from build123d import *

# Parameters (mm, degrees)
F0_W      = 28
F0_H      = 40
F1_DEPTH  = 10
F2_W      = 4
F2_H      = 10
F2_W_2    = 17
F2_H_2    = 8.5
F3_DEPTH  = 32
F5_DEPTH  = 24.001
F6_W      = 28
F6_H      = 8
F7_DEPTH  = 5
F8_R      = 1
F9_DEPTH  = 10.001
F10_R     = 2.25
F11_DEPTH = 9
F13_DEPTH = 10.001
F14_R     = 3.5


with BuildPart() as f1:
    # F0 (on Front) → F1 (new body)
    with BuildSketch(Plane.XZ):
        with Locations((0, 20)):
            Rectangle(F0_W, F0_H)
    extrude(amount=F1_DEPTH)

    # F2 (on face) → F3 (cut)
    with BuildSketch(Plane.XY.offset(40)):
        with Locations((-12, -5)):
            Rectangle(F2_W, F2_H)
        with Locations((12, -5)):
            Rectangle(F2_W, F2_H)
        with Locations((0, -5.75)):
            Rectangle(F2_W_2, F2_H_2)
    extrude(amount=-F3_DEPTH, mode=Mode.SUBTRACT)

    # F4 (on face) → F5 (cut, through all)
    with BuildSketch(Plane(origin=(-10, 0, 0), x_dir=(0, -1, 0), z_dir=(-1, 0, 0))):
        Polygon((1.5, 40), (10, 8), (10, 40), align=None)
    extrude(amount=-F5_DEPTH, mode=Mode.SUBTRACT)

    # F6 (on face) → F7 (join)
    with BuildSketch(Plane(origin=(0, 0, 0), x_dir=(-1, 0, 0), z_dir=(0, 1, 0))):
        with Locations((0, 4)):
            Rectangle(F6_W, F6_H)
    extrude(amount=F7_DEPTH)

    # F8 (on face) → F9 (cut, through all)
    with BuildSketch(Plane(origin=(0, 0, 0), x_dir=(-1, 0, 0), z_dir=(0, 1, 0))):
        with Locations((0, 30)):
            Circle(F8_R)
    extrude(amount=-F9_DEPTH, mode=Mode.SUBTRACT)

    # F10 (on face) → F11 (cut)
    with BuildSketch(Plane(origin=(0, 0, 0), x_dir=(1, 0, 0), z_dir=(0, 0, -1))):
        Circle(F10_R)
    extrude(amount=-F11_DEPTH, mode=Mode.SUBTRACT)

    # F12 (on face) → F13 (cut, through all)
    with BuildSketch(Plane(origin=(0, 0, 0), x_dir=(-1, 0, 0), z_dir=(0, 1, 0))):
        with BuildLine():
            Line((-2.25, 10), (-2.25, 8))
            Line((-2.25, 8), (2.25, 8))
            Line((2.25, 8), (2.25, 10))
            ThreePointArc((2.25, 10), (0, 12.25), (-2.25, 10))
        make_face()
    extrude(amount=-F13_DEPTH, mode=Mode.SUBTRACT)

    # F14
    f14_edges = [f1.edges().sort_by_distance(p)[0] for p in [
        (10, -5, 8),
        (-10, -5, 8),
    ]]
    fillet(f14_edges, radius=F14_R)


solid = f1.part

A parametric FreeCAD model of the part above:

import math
import FreeCAD as App
import Part
import Sketcher
from FreeCAD import Vector
Q = App.Units.Quantity


def edges_at(feature, points):
    """Names of the edges that pass closest to the given points."""
    edges = feature.Shape.Edges
    near = lambda p: min(range(len(edges)), key=lambda i: edges[i].distToShape(Part.Vertex(*p))[0])
    return sorted({f"Edge{near(p) + 1}" for p in points})

doc = App.newDocument("Part")
params = doc.addObject("Spreadsheet::Sheet", "Params")
for row, (alias, value) in enumerate([
    ("sketch1_width", "28 mm"),
    ("sketch1_height", "40 mm"),
    ("pad1_length", "10 mm"),
    ("sketch2_width", "4 mm"),
    ("sketch2_width2", "17 mm"),
    ("sketch2_height", "10 mm"),
    ("sketch2_height2", "8.5 mm"),
    ("pocket1_length", "32 mm"),
    ("sketch3_height", "32 mm"),
    ("sketch3_width", "8.5 mm"),
    ("sketch4_width", "28 mm"),
    ("sketch4_height", "8 mm"),
    ("pad2_length", "5 mm"),
    ("sketch5_diameter", "2 mm"),
    ("sketch6_diameter", "4.5 mm"),
    ("pocket4_length", "9 mm"),
    ("sketch7_height", "2 mm"),
    ("sketch7_radius", "2.25 mm"),
    ("fillet_radius", "3.5 mm"),
], start=1):
    params.set(f"A{row}", alias)
    params.set(f"B{row}", "=" + value)
    params.setAlias(f"B{row}", alias)

body = doc.addObject("PartDesign::Body", "Body")

sketch1 = body.newObject("Sketcher::SketchObject", "Sketch")
sketch1.AttachmentSupport = (doc.getObject("XZ_Plane"), [""])
sketch1.MapMode = "FlatFace"
sketch1.addGeometry([
    Part.LineSegment(Vector(-14, 40, 0), Vector(-14, 0, 0)),
    Part.LineSegment(Vector(-14, 0, 0), Vector(14, 0, 0)),
    Part.LineSegment(Vector(14, 0, 0), Vector(14, 40, 0)),
    Part.LineSegment(Vector(14, 40, 0), Vector(-14, 40, 0)),
], False)
sketch1.addConstraint([
    Sketcher.Constraint("Coincident", 0, 2, 1, 1),
    Sketcher.Constraint("Coincident", 1, 2, 2, 1),
    Sketcher.Constraint("Coincident", 2, 2, 3, 1),
    Sketcher.Constraint("Coincident", 3, 2, 0, 1),
    Sketcher.Constraint("Vertical", 0),
    Sketcher.Constraint("Horizontal", 1),
    Sketcher.Constraint("Vertical", 2),
    Sketcher.Constraint("Horizontal", 3),
    Sketcher.Constraint("Symmetric", 0, 2, 1, 2, -1, 1),
    Sketcher.Constraint("DistanceX", 1, 1, 1, 2, Q("28 mm")),
    Sketcher.Constraint("DistanceY", 0, 2, 0, 1, Q("40 mm")),
])
sketch1.setExpression("Constraints[9]", "Params.sketch1_width")
sketch1.setExpression("Constraints[10]", "Params.sketch1_height")
pad1 = body.newObject("PartDesign::Pad", "Pad")
pad1.Profile = sketch1
pad1.setExpression("Length", "Params.pad1_length")

sketch2 = body.newObject("Sketcher::SketchObject", "Sketch001")
sketch2.AttachmentSupport = (doc.getObject("XY_Plane"), [""])
sketch2.MapMode = "FlatFace"
sketch2.AttachmentOffset = App.Placement(Vector(0, 0, 40), App.Rotation())
sketch2.addGeometry([
    Part.LineSegment(Vector(-14, 0, 0), Vector(-14, -10, 0)),
    Part.LineSegment(Vector(-14, -10, 0), Vector(-10, -10, 0)),
    Part.LineSegment(Vector(-10, -10, 0), Vector(-10, 0, 0)),
    Part.LineSegment(Vector(-10, 0, 0), Vector(-14, 0, 0)),
    Part.LineSegment(Vector(10, 0, 0), Vector(10, -10, 0)),
    Part.LineSegment(Vector(10, -10, 0), Vector(14, -10, 0)),
    Part.LineSegment(Vector(14, -10, 0), Vector(14, 0, 0)),
    Part.LineSegment(Vector(14, 0, 0), Vector(10, 0, 0)),
    Part.LineSegment(Vector(-8.5, -1.5, 0), Vector(-8.5, -10, 0)),
    Part.LineSegment(Vector(-8.5, -10, 0), Vector(8.5, -10, 0)),
    Part.LineSegment(Vector(8.5, -10, 0), Vector(8.5, -1.5, 0)),
    Part.LineSegment(Vector(8.5, -1.5, 0), Vector(-8.5, -1.5, 0)),
], False)
sketch2.addConstraint([
    Sketcher.Constraint("Coincident", 0, 2, 1, 1),
    Sketcher.Constraint("Coincident", 1, 2, 2, 1),
    Sketcher.Constraint("Coincident", 2, 2, 3, 1),
    Sketcher.Constraint("Coincident", 3, 2, 0, 1),
    Sketcher.Constraint("Coincident", 4, 2, 5, 1),
    Sketcher.Constraint("Coincident", 5, 2, 6, 1),
    Sketcher.Constraint("Coincident", 6, 2, 7, 1),
    Sketcher.Constraint("Coincident", 7, 2, 4, 1),
    Sketcher.Constraint("Coincident", 8, 2, 9, 1),
    Sketcher.Constraint("Coincident", 9, 2, 10, 1),
    Sketcher.Constraint("Coincident", 10, 2, 11, 1),
    Sketcher.Constraint("Coincident", 11, 2, 8, 1),
    Sketcher.Constraint("Vertical", 0),
    Sketcher.Constraint("Horizontal", 1),
    Sketcher.Constraint("Vertical", 2),
    Sketcher.Constraint("Horizontal", 3),
    Sketcher.Constraint("Vertical", 4),
    Sketcher.Constraint("Horizontal", 5),
    Sketcher.Constraint("Vertical", 6),
    Sketcher.Constraint("Horizontal", 7),
    Sketcher.Constraint("Vertical", 8),
    Sketcher.Constraint("Horizontal", 9),
    Sketcher.Constraint("Vertical", 10),
    Sketcher.Constraint("Horizontal", 11),
    Sketcher.Constraint("Symmetric", 3, 2, 6, 2, -1, 1),
    Sketcher.Constraint("Symmetric", 1, 2, 4, 2, -2),
    Sketcher.Constraint("PointOnObject", 2, 2, -1),
    Sketcher.Constraint("Horizontal", 5, 2, 8, 2),
    Sketcher.Constraint("DistanceX", 1, 1, 1, 2, Q("4 mm")),
    Sketcher.Constraint("DistanceX", 9, 1, 9, 2, Q("17 mm")),
    Sketcher.Constraint("DistanceY", 0, 2, 0, 1, Q("10 mm")),
    Sketcher.Constraint("DistanceY", 8, 2, 8, 1, Q("8.5 mm")),
    Sketcher.Constraint("DistanceX", 0, 2, -1, 1, Q("14 mm")),
    Sketcher.Constraint("DistanceX", 8, 2, -1, 1, Q("8.5 mm")),
])
sketch2.setExpression("Constraints[28]", "Params.sketch2_width")
sketch2.setExpression("Constraints[29]", "Params.sketch2_width2")
sketch2.setExpression("Constraints[30]", "Params.sketch2_height")
sketch2.setExpression("Constraints[31]", "Params.sketch2_height2")
pocket1 = body.newObject("PartDesign::Pocket", "Pocket")
pocket1.Profile = sketch2
pocket1.setExpression("Length", "Params.pocket1_length")

sketch3 = body.newObject("Sketcher::SketchObject", "Sketch002")
sketch3.AttachmentSupport = (doc.getObject("YZ_Plane"), [""])
sketch3.MapMode = "FlatFace"
sketch3.AttachmentOffset = App.Placement(Vector(0, 0, -10), App.Rotation())
sketch3.addGeometry([
    Part.LineSegment(Vector(-1.5, 40, 0), Vector(-10, 8, 0)),
    Part.LineSegment(Vector(-10, 8, 0), Vector(-10, 40, 0)),
    Part.LineSegment(Vector(-10, 40, 0), Vector(-1.5, 40, 0)),
], False)
sketch3.addConstraint([
    Sketcher.Constraint("Coincident", 0, 2, 1, 1),
    Sketcher.Constraint("Coincident", 1, 2, 2, 1),
    Sketcher.Constraint("Coincident", 2, 2, 0, 1),
    Sketcher.Constraint("Vertical", 1),
    Sketcher.Constraint("Horizontal", 2),
    Sketcher.Constraint("DistanceY", 1, 1, 1, 2, Q("32 mm")),
    Sketcher.Constraint("DistanceX", 2, 1, 2, 2, Q("8.5 mm")),
    Sketcher.Constraint("DistanceX", 0, 2, -1, 1, Q("10 mm")),
    Sketcher.Constraint("DistanceY", -1, 1, 0, 2, Q("8 mm")),
])
sketch3.setExpression("Constraints[5]", "Params.sketch3_height")
sketch3.setExpression("Constraints[6]", "Params.sketch3_width")
pocket2 = body.newObject("PartDesign::Pocket", "Pocket001")
pocket2.Profile = sketch3
pocket2.Type = "ThroughAll"
pocket2.Reversed = True

sketch4 = body.newObject("Sketcher::SketchObject", "Sketch003")
sketch4.AttachmentSupport = (doc.getObject("XZ_Plane"), [""])
sketch4.MapMode = "FlatFace"
sketch4.addGeometry([
    Part.LineSegment(Vector(14, 8, 0), Vector(14, 0, 0)),
    Part.LineSegment(Vector(14, 0, 0), Vector(-14, 0, 0)),
    Part.LineSegment(Vector(-14, 0, 0), Vector(-14, 8, 0)),
    Part.LineSegment(Vector(-14, 8, 0), Vector(14, 8, 0)),
], False)
sketch4.addConstraint([
    Sketcher.Constraint("Coincident", 0, 2, 1, 1),
    Sketcher.Constraint("Coincident", 1, 2, 2, 1),
    Sketcher.Constraint("Coincident", 2, 2, 3, 1),
    Sketcher.Constraint("Coincident", 3, 2, 0, 1),
    Sketcher.Constraint("Vertical", 0),
    Sketcher.Constraint("Horizontal", 1),
    Sketcher.Constraint("Vertical", 2),
    Sketcher.Constraint("Horizontal", 3),
    Sketcher.Constraint("Symmetric", 0, 2, 1, 2, -1, 1),
    Sketcher.Constraint("DistanceX", 1, 2, 1, 1, Q("28 mm")),
    Sketcher.Constraint("DistanceY", 0, 2, 0, 1, Q("8 mm")),
])
sketch4.setExpression("Constraints[9]", "Params.sketch4_width")
sketch4.setExpression("Constraints[10]", "Params.sketch4_height")
pad2 = body.newObject("PartDesign::Pad", "Pad001")
pad2.Profile = sketch4
pad2.setExpression("Length", "Params.pad2_length")
pad2.Reversed = True

sketch5 = body.newObject("Sketcher::SketchObject", "Sketch004")
sketch5.AttachmentSupport = (doc.getObject("XZ_Plane"), [""])
sketch5.MapMode = "FlatFace"
sketch5.addGeometry(Part.Circle(Vector(0, 30, 0), Vector(0, 0, 1), 1), False)
sketch5.addConstraint([
    Sketcher.Constraint("PointOnObject", 0, 3, -2),
    Sketcher.Constraint("Diameter", 0, Q("2 mm")),
    Sketcher.Constraint("DistanceY", -1, 1, 0, 3, Q("30 mm")),
])
sketch5.setExpression("Constraints[1]", "Params.sketch5_diameter")
pocket3 = body.newObject("PartDesign::Pocket", "Pocket002")
pocket3.Profile = sketch5
pocket3.Type = "ThroughAll"
pocket3.Reversed = True

sketch6 = body.newObject("Sketcher::SketchObject", "Sketch005")
sketch6.AttachmentSupport = (doc.getObject("XY_Plane"), [""])
sketch6.MapMode = "FlatFace"
sketch6.addGeometry(Part.Circle(Vector(0, 0, 0), Vector(0, 0, 1), 2.25), False)
sketch6.addConstraint([
    Sketcher.Constraint("Coincident", 0, 3, -1, 1),
    Sketcher.Constraint("Diameter", 0, Q("4.5 mm")),
])
sketch6.setExpression("Constraints[1]", "Params.sketch6_diameter")
pocket4 = body.newObject("PartDesign::Pocket", "Pocket003")
pocket4.Profile = sketch6
pocket4.setExpression("Length", "Params.pocket4_length")
pocket4.Reversed = True

sketch7 = body.newObject("Sketcher::SketchObject", "Sketch006")
sketch7.AttachmentSupport = (doc.getObject("XZ_Plane"), [""])
sketch7.MapMode = "FlatFace"
sketch7.addGeometry([
    Part.LineSegment(Vector(2.25, 10, 0), Vector(2.25, 8, 0)),
    Part.LineSegment(Vector(2.25, 8, 0), Vector(-2.25, 8, 0)),
    Part.LineSegment(Vector(-2.25, 8, 0), Vector(-2.25, 10, 0)),
    Part.ArcOfCircle(Part.Circle(Vector(0, 10, 0), Vector(0, 0, 1), 2.25), math.radians(0), math.radians(180)),
], False)
sketch7.addConstraint([
    Sketcher.Constraint("Coincident", 0, 2, 1, 1),
    Sketcher.Constraint("Coincident", 1, 2, 2, 1),
    Sketcher.Constraint("Tangent", 2, 2, 3, 2),
    Sketcher.Constraint("Tangent", 3, 1, 0, 1),
    Sketcher.Constraint("Vertical", 0),
    Sketcher.Constraint("Horizontal", 1),
    Sketcher.Constraint("Vertical", 2),
    Sketcher.Constraint("PointOnObject", 3, 3, -2),
    Sketcher.Constraint("DistanceY", 0, 2, 0, 1, Q("2 mm")),
    Sketcher.Constraint("Radius", 3, Q("2.25 mm")),
    Sketcher.Constraint("DistanceY", -1, 1, 3, 3, Q("10 mm")),
])
sketch7.setExpression("Constraints[8]", "Params.sketch7_height")
sketch7.setExpression("Constraints[9]", "Params.sketch7_radius")
pocket5 = body.newObject("PartDesign::Pocket", "Pocket004")
pocket5.Profile = sketch7
pocket5.Type = "ThroughAll"
pocket5.Reversed = True
doc.recompute()

fillet = body.newObject("PartDesign::Fillet", "Fillet")
fillet.Base = (pocket5, edges_at(pocket5, [(10, -5, 8), (-10, -5, 8)]))
fillet.setExpression("Radius", "Params.fillet_radius")

doc.recompute()
